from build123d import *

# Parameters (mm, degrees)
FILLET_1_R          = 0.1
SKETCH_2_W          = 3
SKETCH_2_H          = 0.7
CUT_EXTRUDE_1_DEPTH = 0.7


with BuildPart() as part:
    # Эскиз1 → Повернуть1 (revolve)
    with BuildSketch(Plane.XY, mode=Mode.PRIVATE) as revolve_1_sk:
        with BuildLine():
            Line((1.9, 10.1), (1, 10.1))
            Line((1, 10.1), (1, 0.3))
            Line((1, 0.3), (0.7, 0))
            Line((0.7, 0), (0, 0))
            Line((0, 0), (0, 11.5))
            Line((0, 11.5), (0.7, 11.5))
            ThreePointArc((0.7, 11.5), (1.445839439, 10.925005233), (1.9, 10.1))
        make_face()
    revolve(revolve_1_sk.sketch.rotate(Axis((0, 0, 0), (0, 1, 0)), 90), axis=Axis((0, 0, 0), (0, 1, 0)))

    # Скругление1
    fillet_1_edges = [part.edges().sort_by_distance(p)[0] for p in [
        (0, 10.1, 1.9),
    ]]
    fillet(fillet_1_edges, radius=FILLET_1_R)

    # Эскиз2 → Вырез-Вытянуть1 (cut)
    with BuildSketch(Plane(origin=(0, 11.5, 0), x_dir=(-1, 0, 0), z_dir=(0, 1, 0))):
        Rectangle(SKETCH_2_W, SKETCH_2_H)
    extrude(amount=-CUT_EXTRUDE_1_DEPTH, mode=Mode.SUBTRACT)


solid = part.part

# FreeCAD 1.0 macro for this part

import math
import FreeCAD as App
import Part
import Sketcher
Q = App.Units.Quantity


def edges_at(feature, points):
    """Names of the edges that pass closest to the given points."""
    edges = feature.Shape.Edges
    near = lambda p: min(range(len(edges)), key=lambda i: edges[i].distToShape(Part.Vertex(*p))[0])
    return sorted({f"Edge{near(p) + 1}" for p in points})

doc = App.newDocument("Part")
params = doc.addObject("Spreadsheet::Sheet", "Params")
for row, (alias, value) in enumerate([
    ("sketch1_width", "0.9 mm"),
    ("sketch1_width2", "0.7 mm"),
    ("sketch1_height", "11.5 mm"),
    ("sketch1_height2", "9.8 mm"),
    ("revolution_angle", "360 deg"),
    ("fillet_radius", "0.1 mm"),
    ("sketch2_width", "3 mm"),
    ("sketch2_height", "0.7 mm"),
    ("pocket1_length", "0.7 mm"),
], start=1):
    params.set(f"A{row}", alias)
    params.set(f"B{row}", "=" + value)
    params.setAlias(f"B{row}", alias)

body = doc.addObject("PartDesign::Body", "Body")

# Sketch on XY plane
sketch1 = doc.addObject("Sketcher::SketchObject", "Sketch")
body.addObject(sketch1)
sketch1.AttachmentSupport = (doc.XY_Plane, [""])
sketch1.MapMode = "FlatFace"
sketch1.addGeometry(Part.LineSegment(App.Vector(1, 10.1, 0), App.Vector(1.9, 10.1, 0)), False)
sketch1.addGeometry(Part.ArcOfCircle(Part.Circle(App.Vector(-0.30701, 9.422563, 0), App.Vector(0, 0, 1), 2.308639), math.radians(17.063759), math.radians(64.13883)), False)
sketch1.addGeometry(Part.LineSegment(App.Vector(0.7, 11.5, 0), App.Vector(0, 11.5, 0)), False)
sketch1.addGeometry(Part.LineSegment(App.Vector(0, 11.5, 0), App.Vector(0, 0, 0)), False)
sketch1.addGeometry(Part.LineSegment(App.Vector(0, 0, 0), App.Vector(0.7, 0, 0)), False)
sketch1.addGeometry(Part.LineSegment(App.Vector(0.7, 0, 0), App.Vector(1, 0.3, 0)), False)
sketch1.addGeometry(Part.LineSegment(App.Vector(1, 0.3, 0), App.Vector(1, 10.1, 0)), False)
sketch1.addConstraint(Sketcher.Constraint("Coincident", 0, 2, 1, 1))
sketch1.addConstraint(Sketcher.Constraint("Coincident", 1, 2, 2, 1))
sketch1.addConstraint(Sketcher.Constraint("Coincident", 2, 2, 3, 1))
sketch1.addConstraint(Sketcher.Constraint("Coincident", 3, 2, 4, 1))
sketch1.addConstraint(Sketcher.Constraint("Coincident", 4, 2, 5, 1))
sketch1.addConstraint(Sketcher.Constraint("Coincident", 5, 2, 6, 1))
sketch1.addConstraint(Sketcher.Constraint("Coincident", 6, 2, 0, 1))
sketch1.addConstraint(Sketcher.Constraint("Horizontal", 0))
sketch1.addConstraint(Sketcher.Constraint("Horizontal", 2))
sketch1.addConstraint(Sketcher.Constraint("Vertical", 3))
sketch1.addConstraint(Sketcher.Constraint("Horizontal", 4))
sketch1.addConstraint(Sketcher.Constraint("Vertical", 6))
sketch1.addConstraint(Sketcher.Constraint("Coincident", 3, 2, -1, 1))
sketch1.addConstraint(Sketcher.Constraint("Vertical", 1, 2, 4, 2))
sketch1.addConstraint(Sketcher.Constraint("Angle", 5, Q("45 deg")))
sketch1.addConstraint(Sketcher.Constraint("DistanceX", 0, 1, 0, 2, Q("0.9 mm")))
sketch1.addConstraint(Sketcher.Constraint("DistanceX", 2, 2, 2, 1, Q("0.7 mm")))
sketch1.addConstraint(Sketcher.Constraint("DistanceY", 3, 2, 3, 1, Q("11.5 mm")))
sketch1.addConstraint(Sketcher.Constraint("DistanceY", 6, 1, 6, 2, Q("9.8 mm")))
sketch1.addConstraint(Sketcher.Constraint("DistanceX", -1, 1, 5, 2, Q("1 mm")))
sketch1.addConstraint(Sketcher.Constraint("Radius", 1, Q("2.308639 mm")))
sketch1.setExpression("Constraints[15]", "Params.sketch1_width")
sketch1.setExpression("Constraints[16]", "Params.sketch1_width2")
sketch1.setExpression("Constraints[17]", "Params.sketch1_height")
sketch1.setExpression("Constraints[18]", "Params.sketch1_height2")
revolution = doc.addObject("PartDesign::Revolution", "Revolution")
body.addObject(revolution)
revolution.Profile = sketch1
revolution.ReferenceAxis = (sketch1, ["V_Axis"])
revolution.setExpression("Angle", "Params.revolution_angle")
doc.recompute()

fillet = doc.addObject("PartDesign::Fillet", "Fillet")
body.addObject(fillet)
fillet.Base = (revolution, edges_at(revolution, [(0, 10.1, 1.9)]))
fillet.setExpression("Radius", "Params.fillet_radius")

# Sketch on XZ plane
sketch2 = doc.addObject("Sketcher::SketchObject", "Sketch001")
body.addObject(sketch2)
sketch2.AttachmentSupport = (doc.XZ_Plane, [""])
sketch2.MapMode = "FlatFace"
sketch2.AttachmentOffset = App.Placement(App.Vector(0, 0, -11.5), App.Rotation())
sketch2.addGeometry(Part.LineSegment(App.Vector(1.5, 0.35, 0), App.Vector(1.5, -0.35, 0)), False)
sketch2.addGeometry(Part.LineSegment(App.Vector(1.5, -0.35, 0), App.Vector(-1.5, -0.35, 0)), False)
sketch2.addGeometry(Part.LineSegment(App.Vector(-1.5, -0.35, 0), App.Vector(-1.5, 0.35, 0)), False)
sketch2.addGeometry(Part.LineSegment(App.Vector(-1.5, 0.35, 0), App.Vector(1.5, 0.35, 0)), False)
sketch2.addConstraint(Sketcher.Constraint("Coincident", 0, 2, 1, 1))
sketch2.addConstraint(Sketcher.Constraint("Coincident", 1, 2, 2, 1))
sketch2.addConstraint(Sketcher.Constraint("Coincident", 2, 2, 3, 1))
sketch2.addConstraint(Sketcher.Constraint("Coincident", 3, 2, 0, 1))
sketch2.addConstraint(Sketcher.Constraint("Vertical", 0))
sketch2.addConstraint(Sketcher.Constraint("Horizontal", 1))
sketch2.addConstraint(Sketcher.Constraint("Vertical", 2))
sketch2.addConstraint(Sketcher.Constraint("Horizontal", 3))
sketch2.addConstraint(Sketcher.Constraint("Symmetric", 0, 2, 2, 2, -1, 1))
sketch2.addConstraint(Sketcher.Constraint("DistanceX", 1, 2, 1, 1, Q("3 mm")))
sketch2.addConstraint(Sketcher.Constraint("DistanceY", 0, 2, 0, 1, Q("0.7 mm")))
sketch2.setExpression("Constraints[9]", "Params.sketch2_width")
sketch2.setExpression("Constraints[10]", "Params.sketch2_height")
pocket1 = doc.addObject("PartDesign::Pocket", "Pocket")
body.addObject(pocket1)
pocket1.Profile = sketch2
pocket1.setExpression("Length", "Params.pocket1_length")
pocket1.Reversed = True

doc.recompute()
